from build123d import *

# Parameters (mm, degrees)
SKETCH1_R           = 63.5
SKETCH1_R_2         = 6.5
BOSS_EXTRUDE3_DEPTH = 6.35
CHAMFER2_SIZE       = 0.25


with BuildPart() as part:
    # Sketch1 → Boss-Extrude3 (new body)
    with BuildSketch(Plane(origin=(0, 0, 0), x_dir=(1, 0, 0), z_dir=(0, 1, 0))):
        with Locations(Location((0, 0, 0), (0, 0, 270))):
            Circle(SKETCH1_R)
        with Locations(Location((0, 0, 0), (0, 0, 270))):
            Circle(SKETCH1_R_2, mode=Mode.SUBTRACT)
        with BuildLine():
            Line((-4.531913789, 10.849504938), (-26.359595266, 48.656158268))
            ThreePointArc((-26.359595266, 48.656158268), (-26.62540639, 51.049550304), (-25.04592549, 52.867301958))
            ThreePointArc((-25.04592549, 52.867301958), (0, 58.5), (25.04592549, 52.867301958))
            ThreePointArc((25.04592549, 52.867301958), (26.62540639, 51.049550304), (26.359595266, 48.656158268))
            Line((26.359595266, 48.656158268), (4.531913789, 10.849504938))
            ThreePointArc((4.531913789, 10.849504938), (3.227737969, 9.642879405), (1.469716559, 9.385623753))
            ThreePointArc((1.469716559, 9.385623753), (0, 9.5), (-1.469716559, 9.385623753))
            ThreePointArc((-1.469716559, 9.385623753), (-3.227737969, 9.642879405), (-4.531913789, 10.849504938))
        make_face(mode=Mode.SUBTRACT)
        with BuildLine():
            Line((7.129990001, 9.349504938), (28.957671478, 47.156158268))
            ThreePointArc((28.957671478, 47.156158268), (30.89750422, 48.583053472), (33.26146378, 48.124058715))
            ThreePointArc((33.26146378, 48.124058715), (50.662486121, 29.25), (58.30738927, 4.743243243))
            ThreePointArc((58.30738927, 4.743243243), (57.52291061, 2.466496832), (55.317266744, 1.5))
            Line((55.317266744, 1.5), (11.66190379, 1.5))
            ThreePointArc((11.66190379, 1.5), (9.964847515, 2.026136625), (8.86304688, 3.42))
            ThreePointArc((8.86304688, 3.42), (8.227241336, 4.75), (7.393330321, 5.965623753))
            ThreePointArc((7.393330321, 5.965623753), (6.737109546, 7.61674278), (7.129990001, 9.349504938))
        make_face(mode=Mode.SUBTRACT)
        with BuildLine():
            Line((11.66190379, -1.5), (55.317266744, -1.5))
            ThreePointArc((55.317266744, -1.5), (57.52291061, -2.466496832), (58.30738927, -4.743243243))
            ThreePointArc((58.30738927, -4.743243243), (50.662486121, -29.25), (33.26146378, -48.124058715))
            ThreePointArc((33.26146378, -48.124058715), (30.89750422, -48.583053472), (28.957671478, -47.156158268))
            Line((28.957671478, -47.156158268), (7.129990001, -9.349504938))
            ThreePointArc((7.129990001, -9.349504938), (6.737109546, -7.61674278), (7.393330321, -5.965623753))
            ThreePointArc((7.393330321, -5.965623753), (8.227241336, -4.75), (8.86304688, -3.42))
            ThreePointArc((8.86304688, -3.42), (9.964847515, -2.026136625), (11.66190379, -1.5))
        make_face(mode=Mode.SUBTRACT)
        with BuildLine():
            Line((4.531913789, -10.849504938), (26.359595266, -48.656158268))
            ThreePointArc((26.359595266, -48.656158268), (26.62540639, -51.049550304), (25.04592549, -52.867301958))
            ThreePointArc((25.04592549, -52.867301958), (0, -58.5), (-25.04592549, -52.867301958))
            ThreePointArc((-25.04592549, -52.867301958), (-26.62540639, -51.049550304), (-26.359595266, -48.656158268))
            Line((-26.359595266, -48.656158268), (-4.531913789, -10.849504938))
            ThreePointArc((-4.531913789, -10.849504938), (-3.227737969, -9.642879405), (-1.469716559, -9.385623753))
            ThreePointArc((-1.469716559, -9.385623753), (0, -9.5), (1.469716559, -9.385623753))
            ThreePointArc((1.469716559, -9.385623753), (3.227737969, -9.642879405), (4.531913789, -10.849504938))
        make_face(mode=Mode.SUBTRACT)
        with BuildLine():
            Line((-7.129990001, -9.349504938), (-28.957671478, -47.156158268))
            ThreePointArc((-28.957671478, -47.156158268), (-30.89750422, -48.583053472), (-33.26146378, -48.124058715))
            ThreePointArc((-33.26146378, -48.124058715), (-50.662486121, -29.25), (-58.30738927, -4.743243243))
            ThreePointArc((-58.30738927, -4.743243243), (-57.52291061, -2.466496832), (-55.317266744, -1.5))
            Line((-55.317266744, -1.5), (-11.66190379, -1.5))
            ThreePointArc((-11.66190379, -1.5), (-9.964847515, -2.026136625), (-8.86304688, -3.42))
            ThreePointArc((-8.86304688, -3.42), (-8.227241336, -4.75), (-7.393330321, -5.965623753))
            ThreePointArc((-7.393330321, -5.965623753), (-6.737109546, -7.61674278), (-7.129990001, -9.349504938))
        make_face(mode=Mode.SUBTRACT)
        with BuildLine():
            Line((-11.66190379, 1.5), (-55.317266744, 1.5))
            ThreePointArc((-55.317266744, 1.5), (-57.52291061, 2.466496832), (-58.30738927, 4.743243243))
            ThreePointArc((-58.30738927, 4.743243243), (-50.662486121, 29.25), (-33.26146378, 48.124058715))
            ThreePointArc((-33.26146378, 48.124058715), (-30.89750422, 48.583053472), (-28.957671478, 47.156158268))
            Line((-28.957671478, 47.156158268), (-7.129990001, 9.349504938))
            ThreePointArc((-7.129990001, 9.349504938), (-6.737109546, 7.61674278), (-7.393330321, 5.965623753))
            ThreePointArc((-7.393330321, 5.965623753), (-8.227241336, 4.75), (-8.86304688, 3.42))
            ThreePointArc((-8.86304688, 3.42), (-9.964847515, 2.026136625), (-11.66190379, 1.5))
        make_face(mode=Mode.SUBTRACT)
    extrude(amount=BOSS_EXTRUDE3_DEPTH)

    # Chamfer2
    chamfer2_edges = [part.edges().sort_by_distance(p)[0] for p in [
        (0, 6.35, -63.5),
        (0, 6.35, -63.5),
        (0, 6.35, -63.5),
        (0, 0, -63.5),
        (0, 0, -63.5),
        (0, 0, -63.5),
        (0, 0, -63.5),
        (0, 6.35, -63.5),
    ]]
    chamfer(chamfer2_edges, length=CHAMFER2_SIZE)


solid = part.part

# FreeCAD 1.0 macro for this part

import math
import FreeCAD as App
import Part
import Sketcher
Q = App.Units.Quantity


def edges_at(feature, points):
    """Names of the edges that pass closest to the given points."""
    edges = feature.Shape.Edges
    near = lambda p: min(range(len(edges)), key=lambda i: edges[i].distToShape(Part.Vertex(*p))[0])
    return sorted({f"Edge{near(p) + 1}" for p in points})

doc = App.newDocument("Part")
params = doc.addObject("Spreadsheet::Sheet", "Params")
for row, (alias, value) in enumerate([
    ("sketch1_diameter", "127 mm"),
    ("sketch1_diameter2", "13 mm"),
    ("sketch1_radius", "3 mm"),
    ("sketch1_radius2", "58.5 mm"),
    ("sketch1_radius3", "9.5 mm"),
    ("pad1_length", "6.35 mm"),
    ("chamfer_size", "0.25 mm"),
], start=1):
    params.set(f"A{row}", alias)
    params.set(f"B{row}", "=" + value)
    params.setAlias(f"B{row}", alias)

body = doc.addObject("PartDesign::Body", "Body")

sketch1 = doc.addObject("Sketcher::SketchObject", "Sketch")
body.addObject(sketch1)
sketch1.AttachmentSupport = (doc.XZ_Plane, [""])
sketch1.MapMode = "FlatFace"
sketch1.addGeometry(Part.Circle(App.Vector(0, 0, 0), App.Vector(0, 0, 1), 63.5), False)
sketch1.addGeometry(Part.ArcOfCircle(Part.Circle(App.Vector(-11.7, -4.5, 0), App.Vector(0, 0, 1), 3), math.radians(21), math.radians(90)), False)
sketch1.addGeometry(Part.LineSegment(App.Vector(-11.7, -1.5, 0), App.Vector(-55.3, -1.5, 0)), False)
sketch1.addGeometry(Part.ArcOfCircle(Part.Circle(App.Vector(-55.3, -4.5, 0), App.Vector(0, 0, 1), 3), math.radians(90), math.radians(185)), False)
sketch1.addGeometry(Part.ArcOfCircle(Part.Circle(App.Vector(0, 0, 0), App.Vector(0, 0, 1), 58.5), math.radians(-175), math.radians(-125)), False)
sketch1.addGeometry(Part.ArcOfCircle(Part.Circle(App.Vector(-31.6, -45.7, 0), App.Vector(0, 0, 1), 3), math.radians(-125), math.radians(-30)), False)
sketch1.addGeometry(Part.LineSegment(App.Vector(-29, -47.2, 0), App.Vector(-7.1, -9.3, 0)), False)
sketch1.addGeometry(Part.ArcOfCircle(Part.Circle(App.Vector(-9.7, -7.8, 0), App.Vector(0, 0, 1), 3), math.radians(-30), math.radians(39)), False)
sketch1.addGeometry(Part.ArcOfCircle(Part.Circle(App.Vector(0, 0, 0), App.Vector(0, 0, 1), 9.5), math.radians(-158.9), math.radians(-141.1)), False)
sketch1.addGeometry(Part.ArcOfCircle(Part.Circle(App.Vector(-1.9, -12.3, 0), App.Vector(0, 0, 1), 3), math.radians(81), math.radians(150)), False)
sketch1.addGeometry(Part.LineSegment(App.Vector(-4.5, -10.8, 0), App.Vector(-26.4, -48.7, 0)), False)
sketch1.addGeometry(Part.ArcOfCircle(Part.Circle(App.Vector(-23.8, -50.2, 0), App.Vector(0, 0, 1), 3), math.radians(150), math.radians(245)), False)
sketch1.addGeometry(Part.ArcOfCircle(Part.Circle(App.Vector(0, 0, 0), App.Vector(0, 0, 1), 58.5), math.radians(-115), math.radians(-65)), False)
sketch1.addGeometry(Part.ArcOfCircle(Part.Circle(App.Vector(23.8, -50.2, 0), App.Vector(0, 0, 1), 3), math.radians(-65), math.radians(30)), False)
sketch1.addGeometry(Part.LineSegment(App.Vector(26.4, -48.7, 0), App.Vector(4.5, -10.8, 0)), False)
sketch1.addGeometry(Part.ArcOfCircle(Part.Circle(App.Vector(1.9, -12.3, 0), App.Vector(0, 0, 1), 3), math.radians(30), math.radians(99)), False)
sketch1.addGeometry(Part.ArcOfCircle(Part.Circle(App.Vector(0, 0, 0), App.Vector(0, 0, 1), 9.5), math.radians(-98.9), math.radians(-81.1)), False)
sketch1.addGeometry(Part.ArcOfCircle(Part.Circle(App.Vector(-9.7, 7.8, 0), App.Vector(0, 0, 1), 3), math.radians(-39), math.radians(30)), False)
sketch1.addGeometry(Part.LineSegment(App.Vector(-7.1, 9.3, 0), App.Vector(-29, 47.2, 0)), False)
sketch1.addGeometry(Part.ArcOfCircle(Part.Circle(App.Vector(-31.6, 45.7, 0), App.Vector(0, 0, 1), 3), math.radians(30), math.radians(125)), False)
sketch1.addGeometry(Part.ArcOfCircle(Part.Circle(App.Vector(0, 0, 0), App.Vector(0, 0, 1), 58.5), math.radians(125), math.radians(175)), False)
sketch1.addGeometry(Part.ArcOfCircle(Part.Circle(App.Vector(-55.3, 4.5, 0), App.Vector(0, 0, 1), 3), math.radians(175), math.radians(270)), False)
sketch1.addGeometry(Part.LineSegment(App.Vector(-55.3, 1.5, 0), App.Vector(-11.7, 1.5, 0)), False)
sketch1.addGeometry(Part.ArcOfCircle(Part.Circle(App.Vector(-11.7, 4.5, 0), App.Vector(0, 0, 1), 3), math.radians(-90), math.radians(-21)), False)
sketch1.addGeometry(Part.ArcOfCircle(Part.Circle(App.Vector(0, 0, 0), App.Vector(0, 0, 1), 9.5), math.radians(141.1), math.radians(158.9)), False)
sketch1.addGeometry(Part.ArcOfCircle(Part.Circle(App.Vector(9.7, -7.8, 0), App.Vector(0, 0, 1), 3), math.radians(141), math.radians(210)), False)
sketch1.addGeometry(Part.LineSegment(App.Vector(7.1, -9.3, 0), App.Vector(29, -47.2, 0)), False)
sketch1.addGeometry(Part.ArcOfCircle(Part.Circle(App.Vector(31.6, -45.7, 0), App.Vector(0, 0, 1), 3), math.radians(-150), math.radians(-55)), False)
sketch1.addGeometry(Part.ArcOfCircle(Part.Circle(App.Vector(0, 0, 0), App.Vector(0, 0, 1), 58.5), math.radians(-55), math.radians(-5)), False)
sketch1.addGeometry(Part.ArcOfCircle(Part.Circle(App.Vector(55.3, -4.5, 0), App.Vector(0, 0, 1), 3), math.radians(-5), math.radians(90)), False)
sketch1.addGeometry(Part.LineSegment(App.Vector(55.3, -1.5, 0), App.Vector(11.7, -1.5, 0)), False)
sketch1.addGeometry(Part.ArcOfCircle(Part.Circle(App.Vector(11.7, -4.5, 0), App.Vector(0, 0, 1), 3), math.radians(90), math.radians(159)), False)
sketch1.addGeometry(Part.ArcOfCircle(Part.Circle(App.Vector(0, 0, 0), App.Vector(0, 0, 1), 9.5), math.radians(-38.9), math.radians(-21.1)), False)
sketch1.addGeometry(Part.Circle(App.Vector(0, 0, 0), App.Vector(0, 0, 1), 6.5), False)
sketch1.addGeometry(Part.ArcOfCircle(Part.Circle(App.Vector(1.9, 12.3, 0), App.Vector(0, 0, 1), 3), math.radians(-99), math.radians(-30)), False)
sketch1.addGeometry(Part.LineSegment(App.Vector(4.5, 10.8, 0), App.Vector(26.4, 48.7, 0)), False)
sketch1.addGeometry(Part.ArcOfCircle(Part.Circle(App.Vector(23.8, 50.2, 0), App.Vector(0, 0, 1), 3), math.radians(-30), math.radians(65)), False)
sketch1.addGeometry(Part.ArcOfCircle(Part.Circle(App.Vector(0, 0, 0), App.Vector(0, 0, 1), 58.5), math.radians(65), math.radians(115)), False)
sketch1.addGeometry(Part.ArcOfCircle(Part.Circle(App.Vector(-23.8, 50.2, 0), App.Vector(0, 0, 1), 3), math.radians(115), math.radians(210)), False)
sketch1.addGeometry(Part.LineSegment(App.Vector(-26.4, 48.7, 0), App.Vector(-4.5, 10.8, 0)), False)
sketch1.addGeometry(Part.ArcOfCircle(Part.Circle(App.Vector(-1.9, 12.3, 0), App.Vector(0, 0, 1), 3), math.radians(-150), math.radians(-81)), False)
sketch1.addGeometry(Part.ArcOfCircle(Part.Circle(App.Vector(0, 0, 0), App.Vector(0, 0, 1), 9.5), math.radians(81.1), math.radians(98.9)), False)
sketch1.addGeometry(Part.ArcOfCircle(Part.Circle(App.Vector(11.7, 4.5, 0), App.Vector(0, 0, 1), 3), math.radians(-159), math.radians(-90)), False)
sketch1.addGeometry(Part.LineSegment(App.Vector(11.7, 1.5, 0), App.Vector(55.3, 1.5, 0)), False)
sketch1.addGeometry(Part.ArcOfCircle(Part.Circle(App.Vector(55.3, 4.5, 0), App.Vector(0, 0, 1), 3), math.radians(-90), math.radians(5)), False)
sketch1.addGeometry(Part.ArcOfCircle(Part.Circle(App.Vector(0, 0, 0), App.Vector(0, 0, 1), 58.5), math.radians(5), math.radians(55)), False)
sketch1.addGeometry(Part.ArcOfCircle(Part.Circle(App.Vector(31.6, 45.7, 0), App.Vector(0, 0, 1), 3), math.radians(55), math.radians(150)), False)
sketch1.addGeometry(Part.LineSegment(App.Vector(29, 47.2, 0), App.Vector(7.1, 9.3, 0)), False)
sketch1.addGeometry(Part.ArcOfCircle(Part.Circle(App.Vector(9.7, 7.8, 0), App.Vector(0, 0, 1), 3), math.radians(150), math.radians(219)), False)
sketch1.addGeometry(Part.ArcOfCircle(Part.Circle(App.Vector(0, 0, 0), App.Vector(0, 0, 1), 9.5), math.radians(21.1), math.radians(38.9)), False)
sketch1.addConstraint(Sketcher.Constraint("Tangent", 1, 2, 2, 1))
sketch1.addConstraint(Sketcher.Constraint("Tangent", 2, 2, 3, 1))
sketch1.addConstraint(Sketcher.Constraint("Tangent", 3, 2, 4, 1))
sketch1.addConstraint(Sketcher.Constraint("Tangent", 4, 2, 5, 1))
sketch1.addConstraint(Sketcher.Constraint("Tangent", 5, 2, 6, 1))
sketch1.addConstraint(Sketcher.Constraint("Tangent", 6, 2, 7, 1))
sketch1.addConstraint(Sketcher.Constraint("Tangent", 7, 2, 8, 2))
sketch1.addConstraint(Sketcher.Constraint("Tangent", 8, 1, 1, 1))
sketch1.addConstraint(Sketcher.Constraint("Tangent", 9, 2, 10, 1))
sketch1.addConstraint(Sketcher.Constraint("Tangent", 10, 2, 11, 1))
sketch1.addConstraint(Sketcher.Constraint("Tangent", 11, 2, 12, 1))
sketch1.addConstraint(Sketcher.Constraint("Tangent", 12, 2, 13, 1))
sketch1.addConstraint(Sketcher.Constraint("Tangent", 13, 2, 14, 1))
sketch1.addConstraint(Sketcher.Constraint("Tangent", 14, 2, 15, 1))
sketch1.addConstraint(Sketcher.Constraint("Tangent", 15, 2, 16, 2))
sketch1.addConstraint(Sketcher.Constraint("Tangent", 16, 1, 9, 1))
sketch1.addConstraint(Sketcher.Constraint("Tangent", 17, 2, 18, 1))
sketch1.addConstraint(Sketcher.Constraint("Tangent", 18, 2, 19, 1))
sketch1.addConstraint(Sketcher.Constraint("Tangent", 19, 2, 20, 1))
sketch1.addConstraint(Sketcher.Constraint("Tangent", 20, 2, 21, 1))
sketch1.addConstraint(Sketcher.Constraint("Tangent", 21, 2, 22, 1))
sketch1.addConstraint(Sketcher.Constraint("Tangent", 22, 2, 23, 1))
sketch1.addConstraint(Sketcher.Constraint("Tangent", 23, 2, 24, 2))
sketch1.addConstraint(Sketcher.Constraint("Tangent", 24, 1, 17, 1))
sketch1.addConstraint(Sketcher.Constraint("Tangent", 25, 2, 26, 1))
sketch1.addConstraint(Sketcher.Constraint("Tangent", 26, 2, 27, 1))
sketch1.addConstraint(Sketcher.Constraint("Tangent", 27, 2, 28, 1))
sketch1.addConstraint(Sketcher.Constraint("Tangent", 28, 2, 29, 1))
sketch1.addConstraint(Sketcher.Constraint("Tangent", 29, 2, 30, 1))
sketch1.addConstraint(Sketcher.Constraint("Tangent", 30, 2, 31, 1))
sketch1.addConstraint(Sketcher.Constraint("Tangent", 31, 2, 32, 2))
sketch1.addConstraint(Sketcher.Constraint("Tangent", 32, 1, 25, 1))
sketch1.addConstraint(Sketcher.Constraint("Tangent", 34, 2, 35, 1))
sketch1.addConstraint(Sketcher.Constraint("Tangent", 35, 2, 36, 1))
sketch1.addConstraint(Sketcher.Constraint("Tangent", 36, 2, 37, 1))
sketch1.addConstraint(Sketcher.Constraint("Tangent", 37, 2, 38, 1))
sketch1.addConstraint(Sketcher.Constraint("Tangent", 38, 2, 39, 1))
sketch1.addConstraint(Sketcher.Constraint("Tangent", 39, 2, 40, 1))
sketch1.addConstraint(Sketcher.Constraint("Tangent", 40, 2, 41, 2))
sketch1.addConstraint(Sketcher.Constraint("Tangent", 41, 1, 34, 1))
sketch1.addConstraint(Sketcher.Constraint("Tangent", 42, 2, 43, 1))
sketch1.addConstraint(Sketcher.Constraint("Tangent", 43, 2, 44, 1))
sketch1.addConstraint(Sketcher.Constraint("Tangent", 44, 2, 45, 1))
sketch1.addConstraint(Sketcher.Constraint("Tangent", 45, 2, 46, 1))
sketch1.addConstraint(Sketcher.Constraint("Tangent", 46, 2, 47, 1))
sketch1.addConstraint(Sketcher.Constraint("Tangent", 47, 2, 48, 1))
sketch1.addConstraint(Sketcher.Constraint("Tangent", 48, 2, 49, 2))
sketch1.addConstraint(Sketcher.Constraint("Tangent", 49, 1, 42, 1))
sketch1.addConstraint(Sketcher.Constraint("Horizontal", 2))
sketch1.addConstraint(Sketcher.Constraint("Horizontal", 22))
sketch1.addConstraint(Sketcher.Constraint("Horizontal", 30))
sketch1.addConstraint(Sketcher.Constraint("Horizontal", 43))
sketch1.addConstraint(Sketcher.Constraint("Coincident", 0, 3, -1, 1))
sketch1.addConstraint(Sketcher.Constraint("Coincident", 4, 3, -1, 1))
sketch1.addConstraint(Sketcher.Constraint("Coincident", 8, 3, -1, 1))
sketch1.addConstraint(Sketcher.Constraint("Coincident", 12, 3, -1, 1))
sketch1.addConstraint(Sketcher.Constraint("Coincident", 16, 3, -1, 1))
sketch1.addConstraint(Sketcher.Constraint("Coincident", 20, 3, -1, 1))
sketch1.addConstraint(Sketcher.Constraint("Coincident", 24, 3, -1, 1))
sketch1.addConstraint(Sketcher.Constraint("Coincident", 28, 3, -1, 1))
sketch1.addConstraint(Sketcher.Constraint("Coincident", 32, 3, -1, 1))
sketch1.addConstraint(Sketcher.Constraint("Coincident", 33, 3, -1, 1))
sketch1.addConstraint(Sketcher.Constraint("Coincident", 37, 3, -1, 1))
sketch1.addConstraint(Sketcher.Constraint("Coincident", 41, 3, -1, 1))
sketch1.addConstraint(Sketcher.Constraint("Coincident", 45, 3, -1, 1))
sketch1.addConstraint(Sketcher.Constraint("Coincident", 49, 3, -1, 1))
sketch1.addConstraint(Sketcher.Constraint("Equal", 1, 3))
sketch1.addConstraint(Sketcher.Constraint("Equal", 3, 5))
sketch1.addConstraint(Sketcher.Constraint("Equal", 5, 7))
sketch1.addConstraint(Sketcher.Constraint("Equal", 7, 9))
sketch1.addConstraint(Sketcher.Constraint("Equal", 9, 11))
sketch1.addConstraint(Sketcher.Constraint("Equal", 4, 12))
sketch1.addConstraint(Sketcher.Constraint("Equal", 11, 13))
sketch1.addConstraint(Sketcher.Constraint("Equal", 13, 15))
sketch1.addConstraint(Sketcher.Constraint("Equal", 8, 16))
sketch1.addConstraint(Sketcher.Constraint("Equal", 15, 17))
sketch1.addConstraint(Sketcher.Constraint("Equal", 17, 19))
sketch1.addConstraint(Sketcher.Constraint("Equal", 12, 20))
sketch1.addConstraint(Sketcher.Constraint("Equal", 19, 21))
sketch1.addConstraint(Sketcher.Constraint("Equal", 21, 23))
sketch1.addConstraint(Sketcher.Constraint("Equal", 16, 24))
sketch1.addConstraint(Sketcher.Constraint("Equal", 23, 25))
sketch1.addConstraint(Sketcher.Constraint("Equal", 25, 27))
sketch1.addConstraint(Sketcher.Constraint("Equal", 20, 28))
sketch1.addConstraint(Sketcher.Constraint("Equal", 27, 29))
sketch1.addConstraint(Sketcher.Constraint("Equal", 29, 31))
sketch1.addConstraint(Sketcher.Constraint("Equal", 24, 32))
sketch1.addConstraint(Sketcher.Constraint("Equal", 31, 34))
sketch1.addConstraint(Sketcher.Constraint("Equal", 34, 36))
sketch1.addConstraint(Sketcher.Constraint("Equal", 28, 37))
sketch1.addConstraint(Sketcher.Constraint("Equal", 36, 38))
sketch1.addConstraint(Sketcher.Constraint("Equal", 38, 40))
sketch1.addConstraint(Sketcher.Constraint("Equal", 32, 41))
sketch1.addConstraint(Sketcher.Constraint("Equal", 40, 42))
sketch1.addConstraint(Sketcher.Constraint("Equal", 42, 44))
sketch1.addConstraint(Sketcher.Constraint("Equal", 37, 45))
sketch1.addConstraint(Sketcher.Constraint("Equal", 44, 46))
sketch1.addConstraint(Sketcher.Constraint("Equal", 46, 48))
sketch1.addConstraint(Sketcher.Constraint("Equal", 41, 49))
sketch1.addConstraint(Sketcher.Constraint("Symmetric", 17, 2, 25, 2, -1, 1))
sketch1.addConstraint(Sketcher.Constraint("Symmetric", 9, 2, 34, 2, -1, 1))
sketch1.addConstraint(Sketcher.Constraint("Symmetric", 13, 2, 38, 2, -1, 1))
sketch1.addConstraint(Sketcher.Constraint("Symmetric", 5, 2, 46, 2, -1, 1))
sketch1.addConstraint(Sketcher.Constraint("Symmetric", 10, 2, 13, 2, -2))
sketch1.addConstraint(Sketcher.Constraint("Symmetric", 6, 2, 25, 2, -2))
sketch1.addConstraint(Sketcher.Constraint("Parallel", 6, 10))
sketch1.addConstraint(Sketcher.Constraint("Horizontal", 3, 3, 29, 3))
sketch1.addConstraint(Sketcher.Constraint("Horizontal", 23, 3, 42, 3))
sketch1.addConstraint(Sketcher.Constraint("Vertical", 3, 3, 21, 3))
sketch1.addConstraint(Sketcher.Constraint("Equal", 6, 10))
sketch1.addConstraint(Sketcher.Constraint("Diameter", 0, Q("127 mm")))
sketch1.addConstraint(Sketcher.Constraint("Diameter", 33, Q("13 mm")))
sketch1.addConstraint(Sketcher.Constraint("Radius", 1, Q("3 mm")))
sketch1.addConstraint(Sketcher.Constraint("Radius", 4, Q("58.5 mm")))
sketch1.addConstraint(Sketcher.Constraint("Radius", 8, Q("9.5 mm")))
sketch1.addConstraint(Sketcher.Constraint("Angle", 6, Q("60 deg")))
sketch1.addConstraint(Sketcher.Constraint("DistanceY", 1, 3, -1, 1, Q("4.5 mm")))
sketch1.addConstraint(Sketcher.Constraint("DistanceY", 11, 2, -1, 1, Q("52.867302 mm")))
sketch1.setExpression("Constraints[110]", "Params.sketch1_diameter")
sketch1.setExpression("Constraints[111]", "Params.sketch1_diameter2")
sketch1.setExpression("Constraints[112]", "Params.sketch1_radius")
sketch1.setExpression("Constraints[113]", "Params.sketch1_radius2")
sketch1.setExpression("Constraints[114]", "Params.sketch1_radius3")
pad1 = doc.addObject("PartDesign::Pad", "Pad")
body.addObject(pad1)
pad1.Profile = sketch1
pad1.setExpression("Length", "Params.pad1_length")
pad1.Reversed = True
doc.recompute()

chamfer = doc.addObject("PartDesign::Chamfer", "Chamfer")
body.addObject(chamfer)
chamfer.Base = (pad1, edges_at(pad1, [
    (0, 6.35, -63.5),
    (0, 6.35, -63.5),
    (0, 6.35, -63.5),
    (0, 0, -63.5),
    (0, 0, -63.5),
    (0, 0, -63.5),
    (0, 0, -63.5),
    (0, 6.35, -63.5),
]))
chamfer.setExpression("Size", "Params.chamfer_size")

doc.recompute()
